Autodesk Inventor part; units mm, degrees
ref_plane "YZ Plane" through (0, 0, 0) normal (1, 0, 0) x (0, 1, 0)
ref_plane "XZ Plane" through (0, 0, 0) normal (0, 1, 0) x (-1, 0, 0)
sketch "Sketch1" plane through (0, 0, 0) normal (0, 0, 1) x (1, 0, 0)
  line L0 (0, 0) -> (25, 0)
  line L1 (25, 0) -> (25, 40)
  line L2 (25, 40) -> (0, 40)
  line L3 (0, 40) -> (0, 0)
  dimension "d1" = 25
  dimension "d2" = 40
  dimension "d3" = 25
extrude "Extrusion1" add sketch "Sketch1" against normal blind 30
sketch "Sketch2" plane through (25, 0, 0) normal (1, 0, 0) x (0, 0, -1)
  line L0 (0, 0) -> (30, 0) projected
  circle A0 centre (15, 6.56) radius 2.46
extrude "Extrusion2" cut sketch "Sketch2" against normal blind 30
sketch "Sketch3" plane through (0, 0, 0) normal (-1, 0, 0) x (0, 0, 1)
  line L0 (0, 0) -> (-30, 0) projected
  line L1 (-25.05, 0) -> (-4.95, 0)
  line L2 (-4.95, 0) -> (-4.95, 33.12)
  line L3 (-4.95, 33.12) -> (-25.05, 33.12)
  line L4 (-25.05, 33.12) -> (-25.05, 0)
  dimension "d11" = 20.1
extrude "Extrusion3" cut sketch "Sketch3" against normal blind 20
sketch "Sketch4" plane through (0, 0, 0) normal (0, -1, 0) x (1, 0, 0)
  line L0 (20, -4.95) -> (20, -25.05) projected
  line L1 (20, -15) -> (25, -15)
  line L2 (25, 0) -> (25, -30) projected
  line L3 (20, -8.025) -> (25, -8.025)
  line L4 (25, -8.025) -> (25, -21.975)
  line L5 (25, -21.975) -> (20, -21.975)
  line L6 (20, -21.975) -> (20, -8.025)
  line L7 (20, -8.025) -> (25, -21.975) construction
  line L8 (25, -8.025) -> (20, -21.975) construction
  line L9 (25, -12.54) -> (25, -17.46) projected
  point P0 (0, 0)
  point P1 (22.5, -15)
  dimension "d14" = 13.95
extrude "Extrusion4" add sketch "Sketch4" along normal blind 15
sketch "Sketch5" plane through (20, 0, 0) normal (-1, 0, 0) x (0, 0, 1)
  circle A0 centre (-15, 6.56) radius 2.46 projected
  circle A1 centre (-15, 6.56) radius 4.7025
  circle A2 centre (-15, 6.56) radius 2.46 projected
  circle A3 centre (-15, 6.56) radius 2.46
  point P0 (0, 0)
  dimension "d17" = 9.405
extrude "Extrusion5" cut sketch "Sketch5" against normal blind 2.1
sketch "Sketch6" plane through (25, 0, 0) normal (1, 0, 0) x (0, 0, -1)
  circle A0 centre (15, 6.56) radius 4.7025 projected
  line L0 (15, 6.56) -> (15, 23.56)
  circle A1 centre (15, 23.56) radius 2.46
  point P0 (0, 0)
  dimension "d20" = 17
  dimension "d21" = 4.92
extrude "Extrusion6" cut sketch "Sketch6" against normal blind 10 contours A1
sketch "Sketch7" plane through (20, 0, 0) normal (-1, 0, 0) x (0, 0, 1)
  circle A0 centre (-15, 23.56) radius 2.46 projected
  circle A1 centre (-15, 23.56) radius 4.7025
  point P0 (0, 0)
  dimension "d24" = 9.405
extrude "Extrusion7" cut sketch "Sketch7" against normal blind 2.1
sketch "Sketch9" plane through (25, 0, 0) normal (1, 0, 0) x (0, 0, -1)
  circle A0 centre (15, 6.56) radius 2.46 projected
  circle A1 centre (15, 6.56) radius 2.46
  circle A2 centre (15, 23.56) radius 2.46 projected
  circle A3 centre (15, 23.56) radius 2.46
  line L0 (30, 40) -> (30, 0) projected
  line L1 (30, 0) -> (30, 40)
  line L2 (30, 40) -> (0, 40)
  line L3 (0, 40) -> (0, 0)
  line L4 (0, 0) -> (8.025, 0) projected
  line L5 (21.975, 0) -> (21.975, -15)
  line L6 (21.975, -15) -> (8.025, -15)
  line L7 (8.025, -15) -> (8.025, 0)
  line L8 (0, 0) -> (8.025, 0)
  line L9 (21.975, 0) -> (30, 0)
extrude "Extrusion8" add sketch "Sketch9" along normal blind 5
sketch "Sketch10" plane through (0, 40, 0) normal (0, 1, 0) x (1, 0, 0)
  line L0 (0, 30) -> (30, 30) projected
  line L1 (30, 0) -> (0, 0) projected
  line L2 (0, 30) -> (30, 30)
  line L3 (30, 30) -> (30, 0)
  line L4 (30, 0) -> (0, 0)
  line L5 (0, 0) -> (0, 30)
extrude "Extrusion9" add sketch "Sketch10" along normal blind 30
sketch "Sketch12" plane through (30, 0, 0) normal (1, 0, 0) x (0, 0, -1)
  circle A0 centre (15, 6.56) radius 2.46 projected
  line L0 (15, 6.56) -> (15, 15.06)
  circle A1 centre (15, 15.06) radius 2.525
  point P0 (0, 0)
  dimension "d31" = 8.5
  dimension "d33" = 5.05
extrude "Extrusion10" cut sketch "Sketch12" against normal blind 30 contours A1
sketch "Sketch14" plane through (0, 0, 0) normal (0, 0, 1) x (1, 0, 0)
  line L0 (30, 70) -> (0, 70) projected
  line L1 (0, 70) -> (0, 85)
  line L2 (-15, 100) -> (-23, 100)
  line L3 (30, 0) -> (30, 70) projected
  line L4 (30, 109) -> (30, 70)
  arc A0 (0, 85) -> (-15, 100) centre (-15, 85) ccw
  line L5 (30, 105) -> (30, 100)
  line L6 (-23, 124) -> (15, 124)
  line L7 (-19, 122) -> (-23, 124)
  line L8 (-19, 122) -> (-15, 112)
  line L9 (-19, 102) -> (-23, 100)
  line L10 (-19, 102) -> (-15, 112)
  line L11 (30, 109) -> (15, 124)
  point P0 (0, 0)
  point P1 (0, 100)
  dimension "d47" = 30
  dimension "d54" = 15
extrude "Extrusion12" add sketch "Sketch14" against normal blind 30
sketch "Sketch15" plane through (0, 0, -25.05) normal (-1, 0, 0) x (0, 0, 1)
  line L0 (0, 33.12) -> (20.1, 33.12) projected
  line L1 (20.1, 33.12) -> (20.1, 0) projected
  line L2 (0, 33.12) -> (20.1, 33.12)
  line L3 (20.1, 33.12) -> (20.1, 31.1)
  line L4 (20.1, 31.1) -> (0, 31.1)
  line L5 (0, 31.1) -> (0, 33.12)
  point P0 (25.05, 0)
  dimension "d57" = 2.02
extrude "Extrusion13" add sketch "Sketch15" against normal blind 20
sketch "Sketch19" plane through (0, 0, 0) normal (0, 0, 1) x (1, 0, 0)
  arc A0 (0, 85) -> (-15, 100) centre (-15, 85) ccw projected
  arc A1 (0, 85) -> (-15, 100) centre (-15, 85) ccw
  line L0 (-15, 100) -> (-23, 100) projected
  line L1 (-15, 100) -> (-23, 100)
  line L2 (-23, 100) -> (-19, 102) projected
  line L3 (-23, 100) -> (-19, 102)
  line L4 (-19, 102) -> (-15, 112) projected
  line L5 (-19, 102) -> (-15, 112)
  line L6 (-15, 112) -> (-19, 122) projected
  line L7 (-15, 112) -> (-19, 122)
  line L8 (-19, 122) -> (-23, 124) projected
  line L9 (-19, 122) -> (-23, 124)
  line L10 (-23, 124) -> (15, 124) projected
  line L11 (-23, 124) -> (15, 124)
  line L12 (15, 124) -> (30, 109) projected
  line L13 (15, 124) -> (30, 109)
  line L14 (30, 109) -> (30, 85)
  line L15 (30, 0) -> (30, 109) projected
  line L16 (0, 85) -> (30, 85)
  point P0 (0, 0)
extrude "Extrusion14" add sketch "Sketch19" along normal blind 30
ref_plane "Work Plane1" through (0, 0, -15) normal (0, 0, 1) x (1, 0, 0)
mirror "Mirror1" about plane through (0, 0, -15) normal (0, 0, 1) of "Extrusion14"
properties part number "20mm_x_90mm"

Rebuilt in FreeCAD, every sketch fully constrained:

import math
import FreeCAD as App
import Part
import Sketcher
Q = App.Units.Quantity


def add_polygon(sketch, points):
    """Adds a closed chain of lines whose ends are joined by coincident constraints."""
    first, n = sketch.GeometryCount, len(points)
    for a, b in zip(points, points[1:] + points[:1]):
        sketch.addGeometry(Part.LineSegment(App.Vector(*a, 0), App.Vector(*b, 0)), False)
    for i in range(n):
        sketch.addConstraint(Sketcher.Constraint("Coincident", first + i, 2, first + (i + 1) % n, 1))

doc = App.newDocument("Part")
body = doc.addObject("PartDesign::Body", "Body")

sketch1 = body.newObject("Sketcher::SketchObject", "Sketch")
sketch1.AttachmentSupport = (doc.getObject("XY_Plane"), [""])
sketch1.MapMode = "FlatFace"
add_polygon(sketch1, [(0, 40), (0, 0), (25, 0), (25, 40)])
sketch1.addConstraint([
    Sketcher.Constraint("Vertical", 0),
    Sketcher.Constraint("Horizontal", 1),
    Sketcher.Constraint("Vertical", 2),
    Sketcher.Constraint("Horizontal", 3),
    Sketcher.Constraint("Coincident", 0, 2, -1, 1),
    Sketcher.Constraint("DistanceX", 1, 1, 1, 2, Q("25 mm")),
    Sketcher.Constraint("DistanceY", 0, 2, 0, 1, Q("40 mm")),
])
pad1 = body.newObject("PartDesign::Pad", "Pad")
pad1.Profile = sketch1
pad1.Length = 30
pad1.Reversed = True

sketch2 = body.newObject("Sketcher::SketchObject", "Sketch001")
sketch2.AttachmentSupport = (doc.getObject("YZ_Plane"), [""])
sketch2.MapMode = "FlatFace"
sketch2.AttachmentOffset = App.Placement(App.Vector(0, 0, 25), App.Rotation())
sketch2.addGeometry(Part.Circle(App.Vector(6.56, -15, 0), App.Vector(0, 0, 1), 2.46), False)
sketch2.addConstraint([
    Sketcher.Constraint("Diameter", 0, Q("4.92 mm")),
    Sketcher.Constraint("DistanceY", 0, 3, -1, 1, Q("15 mm")),
    Sketcher.Constraint("DistanceX", -1, 1, 0, 3, Q("6.56 mm")),
])
pocket1 = body.newObject("PartDesign::Pocket", "Pocket")
pocket1.Profile = sketch2
pocket1.Length = 30

sketch3 = body.newObject("Sketcher::SketchObject", "Sketch002")
sketch3.AttachmentSupport = (doc.getObject("YZ_Plane"), [""])
sketch3.MapMode = "FlatFace"
add_polygon(sketch3, [(0, -25.05), (0, -4.95), (33.12, -4.95), (33.12, -25.05)])
sketch3.addConstraint([
    Sketcher.Constraint("Vertical", 0),
    Sketcher.Constraint("Horizontal", 1),
    Sketcher.Constraint("Vertical", 2),
    Sketcher.Constraint("Horizontal", 3),
    Sketcher.Constraint("PointOnObject", 0, 2, -2),
    Sketcher.Constraint("DistanceY", 0, 1, 0, 2, Q("20.1 mm")),
    Sketcher.Constraint("DistanceX", 1, 1, 1, 2, Q("33.12 mm")),
    Sketcher.Constraint("DistanceY", 0, 2, -1, 1, Q("4.95 mm")),
])
pocket2 = body.newObject("PartDesign::Pocket", "Pocket001")
pocket2.Profile = sketch3
pocket2.Length = 20
pocket2.Reversed = True

sketch4 = body.newObject("Sketcher::SketchObject", "Sketch003")
sketch4.AttachmentSupport = (doc.getObject("XZ_Plane"), [""])
sketch4.MapMode = "FlatFace"
add_polygon(sketch4, [(25, -8.025), (20, -8.025), (20, -21.975), (25, -21.975)])
sketch4.addConstraint([
    Sketcher.Constraint("Horizontal", 0),
    Sketcher.Constraint("Vertical", 1),
    Sketcher.Constraint("Horizontal", 2),
    Sketcher.Constraint("Vertical", 3),
    Sketcher.Constraint("DistanceY", 1, 2, 1, 1, Q("13.95 mm")),
    Sketcher.Constraint("DistanceX", 0, 2, 0, 1, Q("5 mm")),
    Sketcher.Constraint("DistanceX", -1, 1, 0, 2, Q("20 mm")),
    Sketcher.Constraint("DistanceY", 0, 2, -1, 1, Q("8.025 mm")),
])
pad2 = body.newObject("PartDesign::Pad", "Pad001")
pad2.Profile = sketch4
pad2.Length = 15

sketch5 = body.newObject("Sketcher::SketchObject", "Sketch004")
sketch5.AttachmentSupport = (doc.getObject("YZ_Plane"), [""])
sketch5.MapMode = "FlatFace"
sketch5.AttachmentOffset = App.Placement(App.Vector(0, 0, 20), App.Rotation())
sketch5.addGeometry([
    Part.Circle(App.Vector(6.56, -15, 0), App.Vector(0, 0, 1), 4.7025),
    Part.Circle(App.Vector(6.56, -15, 0), App.Vector(0, 0, 1), 2.46),
], False)
sketch5.addConstraint([
    Sketcher.Constraint("Coincident", 1, 3, 0, 3),
    Sketcher.Constraint("Diameter", 0, Q("9.405 mm")),
    Sketcher.Constraint("Diameter", 1, Q("4.92 mm")),
    Sketcher.Constraint("DistanceY", 0, 3, -1, 1, Q("15 mm")),
    Sketcher.Constraint("DistanceX", -1, 1, 0, 3, Q("6.56 mm")),
])
pocket3 = body.newObject("PartDesign::Pocket", "Pocket002")
pocket3.Profile = sketch5
pocket3.Length = 2.1
pocket3.Reversed = True

sketch6 = body.newObject("Sketcher::SketchObject", "Sketch005")
sketch6.AttachmentSupport = (doc.getObject("YZ_Plane"), [""])
sketch6.MapMode = "FlatFace"
sketch6.AttachmentOffset = App.Placement(App.Vector(0, 0, 25), App.Rotation())
sketch6.addGeometry(Part.Circle(App.Vector(23.56, -15, 0), App.Vector(0, 0, 1), 2.46), False)
sketch6.addConstraint([
    Sketcher.Constraint("Diameter", 0, Q("4.92 mm")),
    Sketcher.Constraint("DistanceY", 0, 3, -1, 1, Q("15 mm")),
    Sketcher.Constraint("DistanceX", -1, 1, 0, 3, Q("23.56 mm")),
])
pocket4 = body.newObject("PartDesign::Pocket", "Pocket003")
pocket4.Profile = sketch6
pocket4.Length = 10

sketch7 = body.newObject("Sketcher::SketchObject", "Sketch006")
sketch7.AttachmentSupport = (doc.getObject("YZ_Plane"), [""])
sketch7.MapMode = "FlatFace"
sketch7.AttachmentOffset = App.Placement(App.Vector(0, 0, 20), App.Rotation())
sketch7.addGeometry([
    Part.Circle(App.Vector(23.56, -15, 0), App.Vector(0, 0, 1), 4.7025),
    Part.Circle(App.Vector(23.56, -15, 0), App.Vector(0, 0, 1), 2.46),
], False)
sketch7.addConstraint([
    Sketcher.Constraint("Coincident", 1, 3, 0, 3),
    Sketcher.Constraint("Diameter", 0, Q("9.405 mm")),
    Sketcher.Constraint("Diameter", 1, Q("4.92 mm")),
    Sketcher.Constraint("DistanceY", 0, 3, -1, 1, Q("15 mm")),
    Sketcher.Constraint("DistanceX", -1, 1, 0, 3, Q("23.56 mm")),
])
pocket5 = body.newObject("PartDesign::Pocket", "Pocket004")
pocket5.Profile = sketch7
pocket5.Length = 2.1
pocket5.Reversed = True

sketch8 = body.newObject("Sketcher::SketchObject", "Sketch007")
sketch8.AttachmentSupport = (doc.getObject("YZ_Plane"), [""])
sketch8.MapMode = "FlatFace"
sketch8.AttachmentOffset = App.Placement(App.Vector(0, 0, 25), App.Rotation())
add_polygon(sketch8, [(0, -30), (40, -30), (40, 0), (0, 0), (0, -8.025), (-15, -8.025), (-15, -21.975), (0, -21.975)])
sketch8.addGeometry(Part.Circle(App.Vector(6.56, -15, 0), App.Vector(0, 0, 1), 2.46), False)
sketch8.addGeometry(Part.Circle(App.Vector(23.56, -15, 0), App.Vector(0, 0, 1), 2.46), False)
sketch8.addConstraint([
    Sketcher.Constraint("Horizontal", 0),
    Sketcher.Constraint("Vertical", 1),
    Sketcher.Constraint("Horizontal", 2),
    Sketcher.Constraint("Vertical", 3),
    Sketcher.Constraint("Horizontal", 4),
    Sketcher.Constraint("Vertical", 5),
    Sketcher.Constraint("Horizontal", 6),
    Sketcher.Constraint("Vertical", 7),
    Sketcher.Constraint("Coincident", 2, 2, -1, 1),
    Sketcher.Constraint("Equal", 8, 9),
    Sketcher.Constraint("PointOnObject", 6, 2, -2),
    Sketcher.Constraint("Horizontal", 8, 3, 9, 3),
    Sketcher.Constraint("Equal", 3, 7),
    Sketcher.Constraint("Diameter", 8, Q("4.92 mm")),
    Sketcher.Constraint("DistanceX", 0, 1, 0, 2, Q("40 mm")),
    Sketcher.Constraint("DistanceX", 4, 2, 4, 1, Q("15 mm")),
    Sketcher.Constraint("DistanceY", 1, 1, 1, 2, Q("30 mm")),
    Sketcher.Constraint("DistanceY", 8, 3, -1, 1, Q("15 mm")),
    Sketcher.Constraint("DistanceX", 8, 3, 9, 3, Q("17 mm")),
    Sketcher.Constraint("DistanceY", 5, 2, 5, 1, Q("13.95 mm")),
    Sketcher.Constraint("DistanceX", -1, 1, 8, 3, Q("6.56 mm")),
])
pad3 = body.newObject("PartDesign::Pad", "Pad002")
pad3.Profile = sketch8
pad3.Length = 5

sketch9 = body.newObject("Sketcher::SketchObject", "Sketch008")
sketch9.AttachmentSupport = (doc.getObject("XZ_Plane"), [""])
sketch9.MapMode = "FlatFace"
sketch9.AttachmentOffset = App.Placement(App.Vector(0, 0, -40), App.Rotation())
add_polygon(sketch9, [(30, -30), (0, -30), (0, 0), (30, 0)])
sketch9.addConstraint([
    Sketcher.Constraint("Horizontal", 0),
    Sketcher.Constraint("Vertical", 1),
    Sketcher.Constraint("Horizontal", 2),
    Sketcher.Constraint("Vertical", 3),
    Sketcher.Constraint("Coincident", 1, 2, -1, 1),
    Sketcher.Constraint("Equal", 2, 1),
    Sketcher.Constraint("DistanceX", 0, 2, 0, 1, Q("30 mm")),
])
pad4 = body.newObject("PartDesign::Pad", "Pad003")
pad4.Profile = sketch9
pad4.Length = 30
pad4.Reversed = True

sketch10 = body.newObject("Sketcher::SketchObject", "Sketch009")
sketch10.AttachmentSupport = (doc.getObject("YZ_Plane"), [""])
sketch10.MapMode = "FlatFace"
sketch10.AttachmentOffset = App.Placement(App.Vector(0, 0, 30), App.Rotation())
sketch10.addGeometry(Part.Circle(App.Vector(15.06, -15, 0), App.Vector(0, 0, 1), 2.525), False)
sketch10.addConstraint([
    Sketcher.Constraint("Diameter", 0, Q("5.05 mm")),
    Sketcher.Constraint("DistanceY", 0, 3, -1, 1, Q("15 mm")),
    Sketcher.Constraint("DistanceX", -1, 1, 0, 3, Q("15.06 mm")),
])
pocket6 = body.newObject("PartDesign::Pocket", "Pocket005")
pocket6.Profile = sketch10
pocket6.Length = 30

sketch11 = body.newObject("Sketcher::SketchObject", "Sketch010")
sketch11.AttachmentSupport = (doc.getObject("XY_Plane"), [""])
sketch11.MapMode = "FlatFace"
sketch11.addGeometry([
    Part.LineSegment(App.Vector(0, 70, 0), App.Vector(30, 70, 0)),
    Part.LineSegment(App.Vector(30, 70, 0), App.Vector(30, 109, 0)),
    Part.LineSegment(App.Vector(30, 109, 0), App.Vector(15, 124, 0)),
    Part.LineSegment(App.Vector(15, 124, 0), App.Vector(-23, 124, 0)),
    Part.LineSegment(App.Vector(-23, 124, 0), App.Vector(-19, 122, 0)),
    Part.LineSegment(App.Vector(-19, 122, 0), App.Vector(-15, 112, 0)),
    Part.LineSegment(App.Vector(-15, 112, 0), App.Vector(-19, 102, 0)),
    Part.LineSegment(App.Vector(-19, 102, 0), App.Vector(-23, 100, 0)),
    Part.LineSegment(App.Vector(-23, 100, 0), App.Vector(-15, 100, 0)),
    Part.ArcOfCircle(Part.Circle(App.Vector(-15, 85, 0), App.Vector(0, 0, 1), 15), math.radians(0), math.radians(90)),
    Part.LineSegment(App.Vector(0, 85, 0), App.Vector(0, 70, 0)),
], False)
sketch11.addConstraint([
    Sketcher.Constraint("Coincident", 0, 2, 1, 1),
    Sketcher.Constraint("Coincident", 1, 2, 2, 1),
    Sketcher.Constraint("Coincident", 2, 2, 3, 1),
    Sketcher.Constraint("Coincident", 3, 2, 4, 1),
    Sketcher.Constraint("Coincident", 4, 2, 5, 1),
    Sketcher.Constraint("Coincident", 5, 2, 6, 1),
    Sketcher.Constraint("Coincident", 6, 2, 7, 1),
    Sketcher.Constraint("Coincident", 7, 2, 8, 1),
    Sketcher.Constraint("Tangent", 8, 2, 9, 2),
    Sketcher.Constraint("Tangent", 9, 1, 10, 1),
    Sketcher.Constraint("Coincident", 10, 2, 0, 1),
    Sketcher.Constraint("Horizontal", 0),
    Sketcher.Constraint("Vertical", 1),
    Sketcher.Constraint("Horizontal", 3),
    Sketcher.Constraint("Horizontal", 8),
    Sketcher.Constraint("Vertical", 10),
    Sketcher.Constraint("PointOnObject", 9, 1, -2),
    Sketcher.Constraint("Vertical", 9, 3, 5, 2),
    Sketcher.Constraint("Vertical", 4, 2, 6, 2),
    Sketcher.Constraint("Vertical", 3, 2, 7, 2),
    Sketcher.Constraint("Equal", 5, 6),
    Sketcher.Constraint("Equal", 4, 7),
    Sketcher.Constraint("Radius", 9, Q("15 mm")),
    Sketcher.Constraint("DistanceX", 0, 1, 0, 2, Q("30 mm")),
    Sketcher.Constraint("DistanceY", 10, 2, 10, 1, Q("15 mm")),
    Sketcher.Constraint("DistanceX", -1, 1, 2, 2, Q("15 mm")),
    Sketcher.Constraint("DistanceY", 1, 2, 2, 2, Q("15 mm")),
    Sketcher.Constraint("DistanceX", 3, 2, 3, 1, Q("38 mm")),
    Sketcher.Constraint("DistanceY", 1, 1, 1, 2, Q("39 mm")),
    Sketcher.Constraint("DistanceY", -1, 1, 9, 3, Q("85 mm")),
    Sketcher.Constraint("DistanceX", 4, 2, -1, 1, Q("19 mm")),
    Sketcher.Constraint("DistanceY", -1, 1, 4, 2, Q("122 mm")),
])
pad5 = body.newObject("PartDesign::Pad", "Pad004")
pad5.Profile = sketch11
pad5.Length = 30
pad5.Reversed = True

sketch12 = body.newObject("Sketcher::SketchObject", "Sketch011")
sketch12.AttachmentSupport = (doc.getObject("YZ_Plane"), [""])
sketch12.MapMode = "FlatFace"
add_polygon(sketch12, [(33.12, -4.95), (33.12, -25.05), (31.1, -25.05), (31.1, -4.95)])
sketch12.addConstraint([
    Sketcher.Constraint("Vertical", 0),
    Sketcher.Constraint("Horizontal", 1),
    Sketcher.Constraint("Vertical", 2),
    Sketcher.Constraint("Horizontal", 3),
    Sketcher.Constraint("DistanceX", 1, 2, 1, 1, Q("2.02 mm")),
    Sketcher.Constraint("DistanceY", 0, 2, 0, 1, Q("20.1 mm")),
    Sketcher.Constraint("DistanceX", -1, 1, 1, 2, Q("31.1 mm")),
    Sketcher.Constraint("DistanceY", 0, 2, -1, 1, Q("25.05 mm")),
])
pad6 = body.newObject("PartDesign::Pad", "Pad005")
pad6.Profile = sketch12
pad6.Length = 20

sketch13 = body.newObject("Sketcher::SketchObject", "Sketch012")
sketch13.AttachmentSupport = (doc.getObject("XY_Plane"), [""])
sketch13.MapMode = "FlatFace"
sketch13.addGeometry([
    Part.ArcOfCircle(Part.Circle(App.Vector(-15, 85, 0), App.Vector(0, 0, 1), 15), math.radians(0), math.radians(90)),
    Part.LineSegment(App.Vector(0, 85, 0), App.Vector(30, 85, 0)),
    Part.LineSegment(App.Vector(30, 85, 0), App.Vector(30, 109, 0)),
    Part.LineSegment(App.Vector(30, 109, 0), App.Vector(15, 124, 0)),
    Part.LineSegment(App.Vector(15, 124, 0), App.Vector(-23, 124, 0)),
    Part.LineSegment(App.Vector(-23, 124, 0), App.Vector(-19, 122, 0)),
    Part.LineSegment(App.Vector(-19, 122, 0), App.Vector(-15, 112, 0)),
    Part.LineSegment(App.Vector(-15, 112, 0), App.Vector(-19, 102, 0)),
    Part.LineSegment(App.Vector(-19, 102, 0), App.Vector(-23, 100, 0)),
    Part.LineSegment(App.Vector(-23, 100, 0), App.Vector(-15, 100, 0)),
], False)
sketch13.addConstraint([
    Sketcher.Constraint("Coincident", 0, 1, 1, 1),
    Sketcher.Constraint("Coincident", 1, 2, 2, 1),
    Sketcher.Constraint("Coincident", 2, 2, 3, 1),
    Sketcher.Constraint("Coincident", 3, 2, 4, 1),
    Sketcher.Constraint("Coincident", 4, 2, 5, 1),
    Sketcher.Constraint("Coincident", 5, 2, 6, 1),
    Sketcher.Constraint("Coincident", 6, 2, 7, 1),
    Sketcher.Constraint("Coincident", 7, 2, 8, 1),
    Sketcher.Constraint("Coincident", 8, 2, 9, 1),
    Sketcher.Constraint("Tangent", 9, 2, 0, 2),
    Sketcher.Constraint("Horizontal", 1),
    Sketcher.Constraint("Vertical", 2),
    Sketcher.Constraint("Horizontal", 4),
    Sketcher.Constraint("Horizontal", 9),
    Sketcher.Constraint("PointOnObject", 0, 1, -2),
    Sketcher.Constraint("Vertical", 0, 3, 6, 2),
    Sketcher.Constraint("Vertical", 5, 2, 7, 2),
    Sketcher.Constraint("Vertical", 4, 2, 8, 2),
    Sketcher.Constraint("Equal", 6, 7),
    Sketcher.Constraint("Equal", 5, 8),
    Sketcher.Constraint("Radius", 0, Q("15 mm")),
    Sketcher.Constraint("DistanceX", 1, 1, 1, 2, Q("30 mm")),
    Sketcher.Constraint("DistanceX", 4, 2, 4, 1, Q("38 mm")),
    Sketcher.Constraint("DistanceX", 9, 1, 9, 2, Q("8 mm")),
    Sketcher.Constraint("DistanceY", 2, 1, 2, 2, Q("24 mm")),
    Sketcher.Constraint("Angle", 3, Q("135 deg")),
    Sketcher.Constraint("DistanceY", -1, 1, 0, 3, Q("85 mm")),
    Sketcher.Constraint("DistanceY", -1, 1, 0, 1, Q("85 mm")),
    Sketcher.Constraint("DistanceX", 5, 2, -1, 1, Q("19 mm")),
    Sketcher.Constraint("DistanceY", -1, 1, 5, 2, Q("122 mm")),
])
pad7 = body.newObject("PartDesign::Pad", "Pad006")
pad7.Profile = sketch13
pad7.Length = 30
doc.recompute()

datumplane = body.newObject("PartDesign::Plane", "DatumPlane")
datumplane.AttachmentSupport = (doc.getObject("XY_Plane"), [""])
datumplane.MapMode = "FlatFace"
datumplane.AttachmentOffset = App.Placement(App.Vector(0, 0, -15), App.Rotation())
mirrored = body.newObject("PartDesign::Mirrored", "Mirrored")
mirrored.Originals = [pad7]
mirrored.MirrorPlane = (datumplane, [""])
body.Tip = mirrored

doc.recompute()
